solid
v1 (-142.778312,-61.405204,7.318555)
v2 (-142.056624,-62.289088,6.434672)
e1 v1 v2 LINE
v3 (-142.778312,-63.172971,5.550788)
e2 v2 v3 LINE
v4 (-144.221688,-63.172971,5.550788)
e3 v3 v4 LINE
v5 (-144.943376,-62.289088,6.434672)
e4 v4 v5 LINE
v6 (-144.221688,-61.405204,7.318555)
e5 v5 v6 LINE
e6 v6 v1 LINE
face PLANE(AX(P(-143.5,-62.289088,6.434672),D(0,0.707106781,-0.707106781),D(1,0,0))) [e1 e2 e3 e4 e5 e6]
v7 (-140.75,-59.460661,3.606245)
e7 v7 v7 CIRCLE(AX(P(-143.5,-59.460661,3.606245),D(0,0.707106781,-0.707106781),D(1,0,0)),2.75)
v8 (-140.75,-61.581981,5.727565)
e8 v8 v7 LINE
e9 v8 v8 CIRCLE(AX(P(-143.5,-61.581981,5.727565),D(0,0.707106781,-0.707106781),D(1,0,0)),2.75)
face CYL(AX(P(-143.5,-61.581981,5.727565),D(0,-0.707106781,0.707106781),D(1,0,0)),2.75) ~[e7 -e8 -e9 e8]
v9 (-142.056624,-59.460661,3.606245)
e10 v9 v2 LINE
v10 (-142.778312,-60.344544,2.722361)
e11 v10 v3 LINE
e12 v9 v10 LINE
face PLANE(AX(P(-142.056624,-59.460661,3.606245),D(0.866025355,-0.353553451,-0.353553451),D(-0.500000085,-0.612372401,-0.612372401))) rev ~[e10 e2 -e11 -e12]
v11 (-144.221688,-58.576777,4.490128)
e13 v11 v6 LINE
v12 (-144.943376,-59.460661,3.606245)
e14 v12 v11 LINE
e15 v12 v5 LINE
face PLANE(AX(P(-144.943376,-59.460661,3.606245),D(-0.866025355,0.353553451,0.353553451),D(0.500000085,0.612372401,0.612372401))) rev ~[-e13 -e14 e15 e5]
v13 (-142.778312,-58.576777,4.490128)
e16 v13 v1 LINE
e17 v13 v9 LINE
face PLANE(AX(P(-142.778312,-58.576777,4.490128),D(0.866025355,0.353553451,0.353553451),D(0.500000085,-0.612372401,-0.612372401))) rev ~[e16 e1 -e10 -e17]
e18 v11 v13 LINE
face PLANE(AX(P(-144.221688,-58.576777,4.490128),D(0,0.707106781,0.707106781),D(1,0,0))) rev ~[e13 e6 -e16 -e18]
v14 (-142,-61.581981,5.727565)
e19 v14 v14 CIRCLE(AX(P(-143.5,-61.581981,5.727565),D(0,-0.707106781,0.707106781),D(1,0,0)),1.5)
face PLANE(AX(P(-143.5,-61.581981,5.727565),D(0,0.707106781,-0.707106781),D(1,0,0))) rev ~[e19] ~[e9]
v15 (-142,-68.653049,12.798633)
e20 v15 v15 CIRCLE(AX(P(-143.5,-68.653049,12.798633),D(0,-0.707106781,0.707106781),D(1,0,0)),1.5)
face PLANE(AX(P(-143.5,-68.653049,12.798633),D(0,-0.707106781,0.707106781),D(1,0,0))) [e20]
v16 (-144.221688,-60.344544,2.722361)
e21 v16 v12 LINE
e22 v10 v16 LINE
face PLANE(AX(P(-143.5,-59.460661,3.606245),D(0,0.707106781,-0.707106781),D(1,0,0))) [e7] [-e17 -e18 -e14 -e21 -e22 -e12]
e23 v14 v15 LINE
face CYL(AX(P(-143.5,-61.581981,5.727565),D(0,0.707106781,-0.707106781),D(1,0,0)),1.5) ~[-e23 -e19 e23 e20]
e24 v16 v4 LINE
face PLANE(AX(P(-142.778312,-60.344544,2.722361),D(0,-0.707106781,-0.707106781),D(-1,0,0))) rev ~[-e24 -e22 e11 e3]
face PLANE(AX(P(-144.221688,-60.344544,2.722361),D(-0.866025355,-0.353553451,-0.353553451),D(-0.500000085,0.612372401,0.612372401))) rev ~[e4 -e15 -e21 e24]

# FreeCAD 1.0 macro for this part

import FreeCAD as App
import Part
import Sketcher

V = App.Vector
Q = App.Units.Quantity

doc = App.newDocument("Part")
params = doc.addObject("Spreadsheet::Sheet", "Params")
for row, (alias, value) in enumerate([
    ("sketch1_diameter", "5.5 mm"),
    ("pad1_length", "3 mm"),
    ("sketch2_diameter", "3 mm"),
    ("pad2_length", "10 mm"),
    ("pocket1_length", "4 mm"),
], start=1):
    params.set(f"A{row}", alias)
    params.set(f"B{row}", "=" + value)
    params.setAlias(f"B{row}", alias)

body = doc.addObject("PartDesign::Body", "Body")

sketch1 = body.newObject("Sketcher::SketchObject", "Sketch")
sketch1.AttachmentSupport = (doc.getObject("XY_Plane"), [""])
sketch1.MapMode = "FlatFace"
sketch1.addGeometry(Part.Circle(V(0, 0, 0), V(0, 0, 1), 2.8), False)
sketch1.addConstraint([
    Sketcher.Constraint("Coincident", 0, 3, -1, 1),
    Sketcher.Constraint("Diameter", 0, 5.5),
])
sketch1.setExpression("Constraints[1]", "Params.sketch1_diameter")
pad1 = body.newObject("PartDesign::Pad", "Pad")
pad1.Profile = sketch1
pad1.setExpression("Length", "Params.pad1_length")

sketch2 = body.newObject("Sketcher::SketchObject", "Sketch001")
sketch2.AttachmentSupport = (doc.getObject("XY_Plane"), [""])
sketch2.MapMode = "FlatFace"
sketch2.addGeometry(Part.Circle(V(0, 0, 0), V(0, 0, 1), 1.5), False)
sketch2.addConstraint([
    Sketcher.Constraint("Coincident", 0, 3, -1, 1),
    Sketcher.Constraint("Diameter", 0, 3.0),
])
sketch2.setExpression("Constraints[1]", "Params.sketch2_diameter")
pad2 = body.newObject("PartDesign::Pad", "Pad001")
pad2.Profile = sketch2
pad2.setExpression("Length", "Params.pad2_length")
pad2.Reversed = True

sketch3 = body.newObject("Sketcher::SketchObject", "Sketch002")
sketch3.AttachmentSupport = (doc.getObject("XY_Plane"), [""])
sketch3.MapMode = "FlatFace"
sketch3.AttachmentOffset = App.Placement(V(0, 0, 3), App.Rotation())
sketch3.addGeometry([
    Part.LineSegment(V(0.7, -1.2, 0), V(1.4, 0, 0)),
    Part.LineSegment(V(1.4, 0, 0), V(0.7, 1.2, 0)),
    Part.LineSegment(V(0.7, 1.2, 0), V(-0.7, 1.2, 0)),
    Part.LineSegment(V(-0.7, 1.2, 0), V(-1.4, 0, 0)),
    Part.LineSegment(V(-1.4, 0, 0), V(-0.7, -1.2, 0)),
    Part.LineSegment(V(-0.7, -1.2, 0), V(0.7, -1.2, 0)),
], False)
sketch3.addConstraint([
    Sketcher.Constraint("Coincident", 0, 2, 1, 1),
    Sketcher.Constraint("Coincident", 1, 2, 2, 1),
    Sketcher.Constraint("Coincident", 2, 2, 3, 1),
    Sketcher.Constraint("Coincident", 3, 2, 4, 1),
    Sketcher.Constraint("Coincident", 4, 2, 5, 1),
    Sketcher.Constraint("Coincident", 5, 2, 0, 1),
    Sketcher.Constraint("Horizontal", 2),
    Sketcher.Constraint("Horizontal", 5),
    Sketcher.Constraint("Symmetric", 0, 2, 3, 2, -1, 1),
    Sketcher.Constraint("Symmetric", 1, 2, 4, 2, -1, 1),
    Sketcher.Constraint("PointOnObject", 0, 2, -1),
    Sketcher.Constraint("Parallel", 0, 3),
    Sketcher.Constraint("Vertical", 2, 2, 4, 2),
    Sketcher.Constraint("Angle", 0, Q("59.999994 deg")),
    Sketcher.Constraint("DistanceY", 4, 2, 2, 2, 2.5),
    Sketcher.Constraint("DistanceX", 2, 2, 2, 1, 1.443376),
])
pocket1 = body.newObject("PartDesign::Pocket", "Pocket")
pocket1.Profile = sketch3
pocket1.setExpression("Length", "Params.pocket1_length")
body2 = doc.addObject("PartDesign::Body", "Body001")
doc.recompute()

body.Placement = App.Placement(V(-143.5, -61.581981, 5.727565), App.Rotation(V(1, 0, 0), 225))
boolean = body2.newObject("PartDesign::Boolean", "Boolean")
boolean.Type = "Fuse"
boolean.addObjects([body])

doc.recompute()
